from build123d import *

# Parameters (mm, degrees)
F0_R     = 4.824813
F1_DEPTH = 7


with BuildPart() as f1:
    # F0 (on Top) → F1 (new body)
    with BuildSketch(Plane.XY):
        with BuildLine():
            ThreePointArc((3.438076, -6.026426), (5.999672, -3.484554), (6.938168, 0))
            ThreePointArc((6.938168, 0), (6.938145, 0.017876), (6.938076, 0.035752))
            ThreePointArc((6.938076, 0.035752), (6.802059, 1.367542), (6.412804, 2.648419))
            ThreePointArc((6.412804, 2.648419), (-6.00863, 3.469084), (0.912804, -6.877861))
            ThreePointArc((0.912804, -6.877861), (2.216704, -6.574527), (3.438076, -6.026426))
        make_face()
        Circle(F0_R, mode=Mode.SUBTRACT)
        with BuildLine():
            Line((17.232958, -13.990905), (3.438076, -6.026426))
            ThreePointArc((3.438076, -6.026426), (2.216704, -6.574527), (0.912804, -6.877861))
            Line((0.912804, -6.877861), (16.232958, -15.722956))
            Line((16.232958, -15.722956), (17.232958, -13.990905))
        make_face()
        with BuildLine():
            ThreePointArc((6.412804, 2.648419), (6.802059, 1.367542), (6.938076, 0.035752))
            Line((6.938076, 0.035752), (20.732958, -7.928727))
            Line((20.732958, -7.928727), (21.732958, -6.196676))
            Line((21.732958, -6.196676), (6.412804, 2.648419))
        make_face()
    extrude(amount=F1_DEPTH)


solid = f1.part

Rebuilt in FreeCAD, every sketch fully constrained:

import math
import FreeCAD as App
import Part
import Sketcher
from FreeCAD import Vector
Q = App.Units.Quantity

doc = App.newDocument("Part")
body = doc.addObject("PartDesign::Body", "Body")

# Sketch on XY plane
sketch1 = body.newObject("Sketcher::SketchObject", "Sketch")
sketch1.AttachmentSupport = (doc.getObject("XY_Plane"), [""])
sketch1.MapMode = "FlatFace"
sketch1.addGeometry(Part.ArcOfCircle(Part.Circle(Vector(0, 0, 0), Vector(0, 0, 1), 6.938), math.radians(-60), math.radians(0)), False)
sketch1.addGeometry(Part.ArcOfCircle(Part.Circle(Vector(-0.009, 0, 0), Vector(0, 0, 1), 6.947), math.radians(0), math.radians(0.29)), False)
sketch1.addGeometry(Part.LineSegment(Vector(6.938, 0.036, 0), Vector(20.733, -7.929, 0)), False)
sketch1.addGeometry(Part.LineSegment(Vector(20.733, -7.929, 0), Vector(21.733, -6.197, 0)), False)
sketch1.addGeometry(Part.LineSegment(Vector(21.733, -6.197, 0), Vector(6.413, 2.648, 0)), False)
sketch1.addGeometry(Part.ArcOfCircle(Part.Circle(Vector(0, 0, 0), Vector(0, 0, 1), 6.938), math.radians(22), math.radians(278)), False)
sketch1.addGeometry(Part.LineSegment(Vector(0.913, -6.878, 0), Vector(16.233, -15.723, 0)), False)
sketch1.addGeometry(Part.LineSegment(Vector(16.233, -15.723, 0), Vector(17.233, -13.991, 0)), False)
sketch1.addGeometry(Part.LineSegment(Vector(17.233, -13.991, 0), Vector(3.438, -6.026, 0)), False)
sketch1.addGeometry(Part.Circle(Vector(0, 0, 0), Vector(0, 0, 1), 4.825), False)
sketch1.addConstraint(Sketcher.Constraint("Tangent", 0, 2, 1, 1))
sketch1.addConstraint(Sketcher.Constraint("Coincident", 1, 2, 2, 1))
sketch1.addConstraint(Sketcher.Constraint("Coincident", 2, 2, 3, 1))
sketch1.addConstraint(Sketcher.Constraint("Coincident", 3, 2, 4, 1))
sketch1.addConstraint(Sketcher.Constraint("Coincident", 4, 2, 5, 1))
sketch1.addConstraint(Sketcher.Constraint("Coincident", 5, 2, 6, 1))
sketch1.addConstraint(Sketcher.Constraint("Coincident", 6, 2, 7, 1))
sketch1.addConstraint(Sketcher.Constraint("Coincident", 7, 2, 8, 1))
sketch1.addConstraint(Sketcher.Constraint("Coincident", 8, 2, 0, 1))
sketch1.addConstraint(Sketcher.Constraint("Coincident", 0, 3, -1, 1))
sketch1.addConstraint(Sketcher.Constraint("Coincident", 5, 3, -1, 1))
sketch1.addConstraint(Sketcher.Constraint("Coincident", 9, 3, -1, 1))
sketch1.addConstraint(Sketcher.Constraint("PointOnObject", 1, 3, -1))
sketch1.addConstraint(Sketcher.Constraint("Perpendicular", 2, 3))
sketch1.addConstraint(Sketcher.Constraint("Perpendicular", 3, 4))
sketch1.addConstraint(Sketcher.Constraint("Parallel", 4, 6))
sketch1.addConstraint(Sketcher.Constraint("Perpendicular", 6, 7))
sketch1.addConstraint(Sketcher.Constraint("Perpendicular", 7, 8))
sketch1.addConstraint(Sketcher.Constraint("Equal", 4, 6))
sketch1.addConstraint(Sketcher.Constraint("Equal", 3, 7))
sketch1.addConstraint(Sketcher.Constraint("Equal", 2, 8))
sketch1.addConstraint(Sketcher.Constraint("Angle", 2, Q("-30.000001 deg")))
sketch1.addConstraint(Sketcher.Constraint("Distance", 3, 2.0))
sketch1.addConstraint(Sketcher.Constraint("DistanceX", 6, 2, 2, 2, 4.5))
sketch1.addConstraint(Sketcher.Constraint("Radius", 1, 6.94685))
sketch1.addConstraint(Sketcher.Constraint("Radius", 5, 6.938168))
sketch1.addConstraint(Sketcher.Constraint("Diameter", 9, 9.649626))
sketch1.addConstraint(Sketcher.Constraint("Radius", 0, 6.938166))
sketch1.addConstraint(Sketcher.Constraint("Distance", 4, 17.69019))
pad1 = body.newObject("PartDesign::Pad", "Pad")
pad1.Profile = sketch1
pad1.Length = 7

doc.recompute()
